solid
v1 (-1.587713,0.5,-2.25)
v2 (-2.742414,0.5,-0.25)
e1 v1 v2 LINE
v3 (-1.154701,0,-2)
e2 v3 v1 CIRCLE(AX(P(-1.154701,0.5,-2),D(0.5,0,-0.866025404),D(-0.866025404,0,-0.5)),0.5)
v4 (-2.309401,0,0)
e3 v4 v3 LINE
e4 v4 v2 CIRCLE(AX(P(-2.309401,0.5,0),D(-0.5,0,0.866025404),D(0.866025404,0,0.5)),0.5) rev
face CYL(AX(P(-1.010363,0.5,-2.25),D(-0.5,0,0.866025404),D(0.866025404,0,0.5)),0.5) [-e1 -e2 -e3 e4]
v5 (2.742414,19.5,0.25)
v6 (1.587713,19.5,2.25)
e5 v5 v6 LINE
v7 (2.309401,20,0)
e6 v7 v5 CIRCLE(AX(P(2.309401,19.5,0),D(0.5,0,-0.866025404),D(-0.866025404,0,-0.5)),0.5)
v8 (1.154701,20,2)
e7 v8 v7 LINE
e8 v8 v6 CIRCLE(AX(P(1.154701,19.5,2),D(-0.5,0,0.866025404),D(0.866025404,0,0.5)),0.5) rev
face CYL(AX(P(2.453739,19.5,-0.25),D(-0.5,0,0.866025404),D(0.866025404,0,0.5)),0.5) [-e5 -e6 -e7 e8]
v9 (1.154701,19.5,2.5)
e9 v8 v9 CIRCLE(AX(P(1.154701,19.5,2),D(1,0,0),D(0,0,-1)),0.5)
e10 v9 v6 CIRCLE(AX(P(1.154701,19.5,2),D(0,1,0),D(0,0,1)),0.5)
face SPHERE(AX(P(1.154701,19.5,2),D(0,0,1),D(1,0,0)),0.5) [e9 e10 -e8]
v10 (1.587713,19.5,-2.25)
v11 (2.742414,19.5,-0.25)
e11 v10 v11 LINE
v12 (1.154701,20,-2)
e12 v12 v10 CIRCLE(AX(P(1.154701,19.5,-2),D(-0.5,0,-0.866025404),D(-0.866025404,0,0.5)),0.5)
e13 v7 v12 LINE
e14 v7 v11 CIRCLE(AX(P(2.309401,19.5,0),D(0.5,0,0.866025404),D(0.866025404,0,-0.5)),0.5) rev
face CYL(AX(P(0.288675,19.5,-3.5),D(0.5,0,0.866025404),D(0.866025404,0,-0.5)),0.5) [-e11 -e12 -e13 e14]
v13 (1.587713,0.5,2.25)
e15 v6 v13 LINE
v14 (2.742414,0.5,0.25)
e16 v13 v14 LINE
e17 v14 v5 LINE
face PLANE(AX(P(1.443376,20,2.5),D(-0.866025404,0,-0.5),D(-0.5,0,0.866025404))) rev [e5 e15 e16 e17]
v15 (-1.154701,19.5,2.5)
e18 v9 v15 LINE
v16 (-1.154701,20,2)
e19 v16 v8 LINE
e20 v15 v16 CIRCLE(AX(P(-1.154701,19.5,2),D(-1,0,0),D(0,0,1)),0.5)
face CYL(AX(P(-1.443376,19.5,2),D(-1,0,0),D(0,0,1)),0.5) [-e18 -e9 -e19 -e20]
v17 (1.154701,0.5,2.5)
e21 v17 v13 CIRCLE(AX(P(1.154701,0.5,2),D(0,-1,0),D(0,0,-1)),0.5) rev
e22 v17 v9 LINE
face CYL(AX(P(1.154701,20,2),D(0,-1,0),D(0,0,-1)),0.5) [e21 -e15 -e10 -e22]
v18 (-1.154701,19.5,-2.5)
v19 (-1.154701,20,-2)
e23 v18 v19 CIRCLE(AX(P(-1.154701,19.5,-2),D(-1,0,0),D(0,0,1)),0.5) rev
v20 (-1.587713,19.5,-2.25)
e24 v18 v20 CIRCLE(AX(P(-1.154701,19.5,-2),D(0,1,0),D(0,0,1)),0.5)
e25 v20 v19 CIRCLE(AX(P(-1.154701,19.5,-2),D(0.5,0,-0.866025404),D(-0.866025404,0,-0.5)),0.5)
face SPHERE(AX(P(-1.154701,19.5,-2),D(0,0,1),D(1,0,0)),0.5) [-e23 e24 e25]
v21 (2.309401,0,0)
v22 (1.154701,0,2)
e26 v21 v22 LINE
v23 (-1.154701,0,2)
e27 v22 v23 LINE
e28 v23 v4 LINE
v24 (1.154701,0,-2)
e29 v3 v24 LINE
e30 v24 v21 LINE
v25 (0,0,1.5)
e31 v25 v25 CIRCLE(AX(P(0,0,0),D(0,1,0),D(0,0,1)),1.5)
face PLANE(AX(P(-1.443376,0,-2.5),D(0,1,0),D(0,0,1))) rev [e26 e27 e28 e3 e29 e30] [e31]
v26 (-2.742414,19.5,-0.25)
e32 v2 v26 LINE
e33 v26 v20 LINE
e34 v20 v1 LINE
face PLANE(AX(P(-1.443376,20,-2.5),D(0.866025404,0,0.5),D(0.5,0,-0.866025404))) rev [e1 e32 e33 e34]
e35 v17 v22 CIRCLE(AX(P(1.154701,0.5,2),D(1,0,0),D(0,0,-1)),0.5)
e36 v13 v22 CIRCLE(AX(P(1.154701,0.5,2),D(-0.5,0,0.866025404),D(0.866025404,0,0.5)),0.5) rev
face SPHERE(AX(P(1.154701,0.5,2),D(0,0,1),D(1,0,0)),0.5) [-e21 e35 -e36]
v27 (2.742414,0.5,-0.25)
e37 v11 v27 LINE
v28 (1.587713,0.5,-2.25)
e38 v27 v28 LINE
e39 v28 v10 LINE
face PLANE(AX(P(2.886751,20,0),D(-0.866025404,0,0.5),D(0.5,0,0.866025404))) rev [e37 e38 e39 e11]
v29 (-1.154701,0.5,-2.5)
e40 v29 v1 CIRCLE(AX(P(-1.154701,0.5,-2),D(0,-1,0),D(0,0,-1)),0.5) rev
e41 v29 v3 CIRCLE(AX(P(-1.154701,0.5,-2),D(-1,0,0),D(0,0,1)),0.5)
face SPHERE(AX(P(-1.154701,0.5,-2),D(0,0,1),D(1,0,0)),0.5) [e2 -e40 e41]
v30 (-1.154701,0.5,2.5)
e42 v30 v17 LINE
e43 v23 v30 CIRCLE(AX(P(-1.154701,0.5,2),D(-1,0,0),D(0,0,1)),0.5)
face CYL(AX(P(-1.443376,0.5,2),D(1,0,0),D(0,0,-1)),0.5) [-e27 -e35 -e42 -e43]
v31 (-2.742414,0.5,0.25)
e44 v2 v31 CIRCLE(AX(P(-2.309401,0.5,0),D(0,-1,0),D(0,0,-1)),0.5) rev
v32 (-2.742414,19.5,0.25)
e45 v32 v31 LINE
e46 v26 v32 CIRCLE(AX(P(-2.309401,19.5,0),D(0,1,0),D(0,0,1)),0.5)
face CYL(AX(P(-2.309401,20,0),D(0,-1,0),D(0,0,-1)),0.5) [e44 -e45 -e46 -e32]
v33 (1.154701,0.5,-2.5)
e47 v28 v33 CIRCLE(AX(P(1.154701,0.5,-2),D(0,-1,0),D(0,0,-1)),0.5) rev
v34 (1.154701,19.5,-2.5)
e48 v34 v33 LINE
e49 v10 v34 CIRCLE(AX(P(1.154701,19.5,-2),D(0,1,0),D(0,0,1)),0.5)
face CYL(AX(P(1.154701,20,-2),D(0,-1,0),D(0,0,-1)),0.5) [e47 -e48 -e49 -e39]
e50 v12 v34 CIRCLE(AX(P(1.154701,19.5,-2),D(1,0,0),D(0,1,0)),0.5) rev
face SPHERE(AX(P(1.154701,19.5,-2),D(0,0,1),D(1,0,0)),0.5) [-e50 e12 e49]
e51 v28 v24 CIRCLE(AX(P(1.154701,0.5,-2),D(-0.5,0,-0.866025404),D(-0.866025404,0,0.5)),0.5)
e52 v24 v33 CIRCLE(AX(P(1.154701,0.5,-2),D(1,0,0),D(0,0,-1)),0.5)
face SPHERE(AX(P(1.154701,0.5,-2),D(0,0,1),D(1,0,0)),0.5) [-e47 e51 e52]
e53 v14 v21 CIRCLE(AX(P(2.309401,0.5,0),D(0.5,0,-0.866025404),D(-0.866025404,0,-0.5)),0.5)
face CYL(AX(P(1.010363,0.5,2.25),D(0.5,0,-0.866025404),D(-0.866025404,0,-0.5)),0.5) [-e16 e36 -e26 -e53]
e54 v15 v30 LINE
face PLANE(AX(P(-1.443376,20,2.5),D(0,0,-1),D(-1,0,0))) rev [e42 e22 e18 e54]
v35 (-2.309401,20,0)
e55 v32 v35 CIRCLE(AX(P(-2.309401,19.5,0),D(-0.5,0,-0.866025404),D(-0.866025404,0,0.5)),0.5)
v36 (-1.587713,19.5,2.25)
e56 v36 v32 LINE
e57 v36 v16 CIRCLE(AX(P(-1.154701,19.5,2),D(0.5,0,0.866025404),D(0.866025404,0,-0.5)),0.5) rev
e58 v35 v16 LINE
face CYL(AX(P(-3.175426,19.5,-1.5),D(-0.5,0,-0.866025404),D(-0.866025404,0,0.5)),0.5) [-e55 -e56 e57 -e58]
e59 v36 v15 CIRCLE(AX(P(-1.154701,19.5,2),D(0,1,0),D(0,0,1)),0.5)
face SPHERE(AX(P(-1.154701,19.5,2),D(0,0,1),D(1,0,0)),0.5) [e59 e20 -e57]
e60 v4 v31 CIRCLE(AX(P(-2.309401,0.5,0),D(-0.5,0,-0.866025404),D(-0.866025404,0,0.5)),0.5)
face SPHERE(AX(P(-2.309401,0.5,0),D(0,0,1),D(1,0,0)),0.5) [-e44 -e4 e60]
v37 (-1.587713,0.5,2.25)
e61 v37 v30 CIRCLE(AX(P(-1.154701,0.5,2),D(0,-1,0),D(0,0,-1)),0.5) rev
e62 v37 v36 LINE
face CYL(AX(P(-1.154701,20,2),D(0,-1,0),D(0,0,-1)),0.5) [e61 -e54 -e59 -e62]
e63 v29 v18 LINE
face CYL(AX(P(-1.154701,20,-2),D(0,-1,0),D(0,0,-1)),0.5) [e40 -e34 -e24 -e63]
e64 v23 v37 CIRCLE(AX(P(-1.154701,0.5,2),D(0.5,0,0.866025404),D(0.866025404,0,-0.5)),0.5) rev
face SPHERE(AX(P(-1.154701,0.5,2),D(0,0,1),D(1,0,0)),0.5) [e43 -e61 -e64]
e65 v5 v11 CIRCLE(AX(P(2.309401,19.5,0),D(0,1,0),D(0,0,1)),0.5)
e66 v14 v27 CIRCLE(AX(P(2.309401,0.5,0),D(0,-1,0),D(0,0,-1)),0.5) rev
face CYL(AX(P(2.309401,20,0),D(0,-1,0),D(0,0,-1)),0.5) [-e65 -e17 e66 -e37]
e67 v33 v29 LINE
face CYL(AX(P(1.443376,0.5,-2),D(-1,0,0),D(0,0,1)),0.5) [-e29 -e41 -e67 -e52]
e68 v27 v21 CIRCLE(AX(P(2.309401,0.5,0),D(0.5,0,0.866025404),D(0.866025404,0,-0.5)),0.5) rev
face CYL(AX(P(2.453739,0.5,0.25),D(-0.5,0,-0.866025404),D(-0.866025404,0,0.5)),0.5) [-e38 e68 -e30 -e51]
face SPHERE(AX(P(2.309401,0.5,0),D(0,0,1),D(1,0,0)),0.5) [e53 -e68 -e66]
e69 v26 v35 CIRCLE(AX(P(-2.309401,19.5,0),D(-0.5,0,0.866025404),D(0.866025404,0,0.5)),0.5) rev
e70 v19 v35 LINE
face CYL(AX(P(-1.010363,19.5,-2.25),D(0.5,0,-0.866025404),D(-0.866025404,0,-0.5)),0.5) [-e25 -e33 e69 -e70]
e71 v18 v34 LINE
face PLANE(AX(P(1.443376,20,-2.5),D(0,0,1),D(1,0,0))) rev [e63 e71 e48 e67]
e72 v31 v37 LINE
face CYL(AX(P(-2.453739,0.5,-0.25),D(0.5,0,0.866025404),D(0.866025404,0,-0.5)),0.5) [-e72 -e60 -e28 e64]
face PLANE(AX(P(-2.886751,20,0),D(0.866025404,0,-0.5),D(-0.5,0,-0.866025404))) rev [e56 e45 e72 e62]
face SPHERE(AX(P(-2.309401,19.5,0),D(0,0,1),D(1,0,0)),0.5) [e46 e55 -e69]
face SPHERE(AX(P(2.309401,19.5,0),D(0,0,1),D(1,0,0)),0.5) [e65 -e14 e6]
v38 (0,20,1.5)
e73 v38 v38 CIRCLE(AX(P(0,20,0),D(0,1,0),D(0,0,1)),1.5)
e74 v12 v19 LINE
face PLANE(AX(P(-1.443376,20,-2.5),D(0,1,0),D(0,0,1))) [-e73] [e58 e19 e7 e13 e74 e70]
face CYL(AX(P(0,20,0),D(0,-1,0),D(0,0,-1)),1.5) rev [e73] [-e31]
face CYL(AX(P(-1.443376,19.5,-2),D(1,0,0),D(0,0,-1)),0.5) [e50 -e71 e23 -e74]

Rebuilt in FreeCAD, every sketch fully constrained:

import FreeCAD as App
import Part
import Sketcher
from FreeCAD import Vector
Q = App.Units.Quantity


def edges_at(feature, points):
    """Names of the edges that pass closest to the given points."""
    edges = feature.Shape.Edges
    near = lambda p: min(range(len(edges)), key=lambda i: edges[i].distToShape(Part.Vertex(*p))[0])
    return sorted({f"Edge{near(p) + 1}" for p in points})


def add_polygon(sketch, points):
    """Adds a closed chain of lines whose ends are joined by coincident constraints."""
    first, n = sketch.GeometryCount, len(points)
    for a, b in zip(points, points[1:] + points[:1]):
        sketch.addGeometry(Part.LineSegment(App.Vector(*a, 0), App.Vector(*b, 0)), False)
    for i in range(n):
        sketch.addConstraint(Sketcher.Constraint("Coincident", first + i, 2, first + (i + 1) % n, 1))

doc = App.newDocument("Part")
params = doc.addObject("Spreadsheet::Sheet", "Params")
for row, (alias, value) in enumerate([
    ("sketch1_diameter", "3 mm"),
    ("pad1_length", "20 mm"),
    ("fillet_radius", "0.5 mm"),
], start=1):
    params.set(f"A{row}", alias)
    params.set(f"B{row}", "=" + value)
    params.setAlias(f"B{row}", alias)

body = doc.addObject("PartDesign::Body", "Body")

# Sketch on XZ plane
sketch1 = body.newObject("Sketcher::SketchObject", "Sketch")
sketch1.AttachmentSupport = (doc.getObject("XZ_Plane"), [""])
sketch1.MapMode = "FlatFace"
add_polygon(sketch1, [(-1.4, -2.5), (-2.9, 0), (-1.4, 2.5), (1.4, 2.5), (2.9, 0), (1.4, -2.5)])  # lines 0-5
sketch1.addGeometry(Part.Circle(Vector(0, 0, 0), Vector(0, 0, 1), 1.5), False)  # 6
sketch1.addConstraint(Sketcher.Constraint("Horizontal", 2))
sketch1.addConstraint(Sketcher.Constraint("Horizontal", 5))
sketch1.addConstraint(Sketcher.Constraint("Coincident", 6, 3, -1, 1))
sketch1.addConstraint(Sketcher.Constraint("Symmetric", 0, 2, 3, 2, -1, 1))
sketch1.addConstraint(Sketcher.Constraint("Symmetric", 1, 2, 4, 2, -1, 1))
sketch1.addConstraint(Sketcher.Constraint("PointOnObject", 0, 2, -1))
sketch1.addConstraint(Sketcher.Constraint("Parallel", 0, 3))
sketch1.addConstraint(Sketcher.Constraint("Vertical", 2, 2, 4, 2))
sketch1.addConstraint(Sketcher.Constraint("Diameter", 6, 3.0))
sketch1.addConstraint(Sketcher.Constraint("Angle", 0, Q("120 deg")))
sketch1.addConstraint(Sketcher.Constraint("DistanceY", 4, 2, 2, 2, 5.0))
sketch1.addConstraint(Sketcher.Constraint("DistanceX", 2, 1, 2, 2, 2.886751))
sketch1.setExpression("Constraints[14]", "Params.sketch1_diameter")
pad1 = body.newObject("PartDesign::Pad", "Pad")
pad1.Profile = sketch1
pad1.setExpression("Length", "Params.pad1_length")
pad1.Reversed = True
doc.recompute()

fillet = body.newObject("PartDesign::Fillet", "Fillet")
fillet.Base = (pad1, edges_at(pad1, [
    (-2.165, 20, 1.25),
    (1.443, 10, -2.5),
    (2.887, 10, 0),
    (1.443, 10, 2.5),
    (-1.443, 10, 2.5),
    (-2.887, 10, 0),
    (-1.443, 10, -2.5),
    (0, 20, 2.5),
    (2.165, 20, 1.25),
    (2.165, 20, -1.25),
    (0, 20, -2.5),
    (2.165, 0, -1.25),
    (2.165, 0, 1.25),
    (0, 0, 2.5),
    (-2.165, 20, -1.25),
    (-2.165, 0, 1.25),
    (-2.165, 0, -1.25),
    (0, 0, -2.5),
]))
fillet.setExpression("Radius", "Params.fillet_radius")

doc.recompute()
